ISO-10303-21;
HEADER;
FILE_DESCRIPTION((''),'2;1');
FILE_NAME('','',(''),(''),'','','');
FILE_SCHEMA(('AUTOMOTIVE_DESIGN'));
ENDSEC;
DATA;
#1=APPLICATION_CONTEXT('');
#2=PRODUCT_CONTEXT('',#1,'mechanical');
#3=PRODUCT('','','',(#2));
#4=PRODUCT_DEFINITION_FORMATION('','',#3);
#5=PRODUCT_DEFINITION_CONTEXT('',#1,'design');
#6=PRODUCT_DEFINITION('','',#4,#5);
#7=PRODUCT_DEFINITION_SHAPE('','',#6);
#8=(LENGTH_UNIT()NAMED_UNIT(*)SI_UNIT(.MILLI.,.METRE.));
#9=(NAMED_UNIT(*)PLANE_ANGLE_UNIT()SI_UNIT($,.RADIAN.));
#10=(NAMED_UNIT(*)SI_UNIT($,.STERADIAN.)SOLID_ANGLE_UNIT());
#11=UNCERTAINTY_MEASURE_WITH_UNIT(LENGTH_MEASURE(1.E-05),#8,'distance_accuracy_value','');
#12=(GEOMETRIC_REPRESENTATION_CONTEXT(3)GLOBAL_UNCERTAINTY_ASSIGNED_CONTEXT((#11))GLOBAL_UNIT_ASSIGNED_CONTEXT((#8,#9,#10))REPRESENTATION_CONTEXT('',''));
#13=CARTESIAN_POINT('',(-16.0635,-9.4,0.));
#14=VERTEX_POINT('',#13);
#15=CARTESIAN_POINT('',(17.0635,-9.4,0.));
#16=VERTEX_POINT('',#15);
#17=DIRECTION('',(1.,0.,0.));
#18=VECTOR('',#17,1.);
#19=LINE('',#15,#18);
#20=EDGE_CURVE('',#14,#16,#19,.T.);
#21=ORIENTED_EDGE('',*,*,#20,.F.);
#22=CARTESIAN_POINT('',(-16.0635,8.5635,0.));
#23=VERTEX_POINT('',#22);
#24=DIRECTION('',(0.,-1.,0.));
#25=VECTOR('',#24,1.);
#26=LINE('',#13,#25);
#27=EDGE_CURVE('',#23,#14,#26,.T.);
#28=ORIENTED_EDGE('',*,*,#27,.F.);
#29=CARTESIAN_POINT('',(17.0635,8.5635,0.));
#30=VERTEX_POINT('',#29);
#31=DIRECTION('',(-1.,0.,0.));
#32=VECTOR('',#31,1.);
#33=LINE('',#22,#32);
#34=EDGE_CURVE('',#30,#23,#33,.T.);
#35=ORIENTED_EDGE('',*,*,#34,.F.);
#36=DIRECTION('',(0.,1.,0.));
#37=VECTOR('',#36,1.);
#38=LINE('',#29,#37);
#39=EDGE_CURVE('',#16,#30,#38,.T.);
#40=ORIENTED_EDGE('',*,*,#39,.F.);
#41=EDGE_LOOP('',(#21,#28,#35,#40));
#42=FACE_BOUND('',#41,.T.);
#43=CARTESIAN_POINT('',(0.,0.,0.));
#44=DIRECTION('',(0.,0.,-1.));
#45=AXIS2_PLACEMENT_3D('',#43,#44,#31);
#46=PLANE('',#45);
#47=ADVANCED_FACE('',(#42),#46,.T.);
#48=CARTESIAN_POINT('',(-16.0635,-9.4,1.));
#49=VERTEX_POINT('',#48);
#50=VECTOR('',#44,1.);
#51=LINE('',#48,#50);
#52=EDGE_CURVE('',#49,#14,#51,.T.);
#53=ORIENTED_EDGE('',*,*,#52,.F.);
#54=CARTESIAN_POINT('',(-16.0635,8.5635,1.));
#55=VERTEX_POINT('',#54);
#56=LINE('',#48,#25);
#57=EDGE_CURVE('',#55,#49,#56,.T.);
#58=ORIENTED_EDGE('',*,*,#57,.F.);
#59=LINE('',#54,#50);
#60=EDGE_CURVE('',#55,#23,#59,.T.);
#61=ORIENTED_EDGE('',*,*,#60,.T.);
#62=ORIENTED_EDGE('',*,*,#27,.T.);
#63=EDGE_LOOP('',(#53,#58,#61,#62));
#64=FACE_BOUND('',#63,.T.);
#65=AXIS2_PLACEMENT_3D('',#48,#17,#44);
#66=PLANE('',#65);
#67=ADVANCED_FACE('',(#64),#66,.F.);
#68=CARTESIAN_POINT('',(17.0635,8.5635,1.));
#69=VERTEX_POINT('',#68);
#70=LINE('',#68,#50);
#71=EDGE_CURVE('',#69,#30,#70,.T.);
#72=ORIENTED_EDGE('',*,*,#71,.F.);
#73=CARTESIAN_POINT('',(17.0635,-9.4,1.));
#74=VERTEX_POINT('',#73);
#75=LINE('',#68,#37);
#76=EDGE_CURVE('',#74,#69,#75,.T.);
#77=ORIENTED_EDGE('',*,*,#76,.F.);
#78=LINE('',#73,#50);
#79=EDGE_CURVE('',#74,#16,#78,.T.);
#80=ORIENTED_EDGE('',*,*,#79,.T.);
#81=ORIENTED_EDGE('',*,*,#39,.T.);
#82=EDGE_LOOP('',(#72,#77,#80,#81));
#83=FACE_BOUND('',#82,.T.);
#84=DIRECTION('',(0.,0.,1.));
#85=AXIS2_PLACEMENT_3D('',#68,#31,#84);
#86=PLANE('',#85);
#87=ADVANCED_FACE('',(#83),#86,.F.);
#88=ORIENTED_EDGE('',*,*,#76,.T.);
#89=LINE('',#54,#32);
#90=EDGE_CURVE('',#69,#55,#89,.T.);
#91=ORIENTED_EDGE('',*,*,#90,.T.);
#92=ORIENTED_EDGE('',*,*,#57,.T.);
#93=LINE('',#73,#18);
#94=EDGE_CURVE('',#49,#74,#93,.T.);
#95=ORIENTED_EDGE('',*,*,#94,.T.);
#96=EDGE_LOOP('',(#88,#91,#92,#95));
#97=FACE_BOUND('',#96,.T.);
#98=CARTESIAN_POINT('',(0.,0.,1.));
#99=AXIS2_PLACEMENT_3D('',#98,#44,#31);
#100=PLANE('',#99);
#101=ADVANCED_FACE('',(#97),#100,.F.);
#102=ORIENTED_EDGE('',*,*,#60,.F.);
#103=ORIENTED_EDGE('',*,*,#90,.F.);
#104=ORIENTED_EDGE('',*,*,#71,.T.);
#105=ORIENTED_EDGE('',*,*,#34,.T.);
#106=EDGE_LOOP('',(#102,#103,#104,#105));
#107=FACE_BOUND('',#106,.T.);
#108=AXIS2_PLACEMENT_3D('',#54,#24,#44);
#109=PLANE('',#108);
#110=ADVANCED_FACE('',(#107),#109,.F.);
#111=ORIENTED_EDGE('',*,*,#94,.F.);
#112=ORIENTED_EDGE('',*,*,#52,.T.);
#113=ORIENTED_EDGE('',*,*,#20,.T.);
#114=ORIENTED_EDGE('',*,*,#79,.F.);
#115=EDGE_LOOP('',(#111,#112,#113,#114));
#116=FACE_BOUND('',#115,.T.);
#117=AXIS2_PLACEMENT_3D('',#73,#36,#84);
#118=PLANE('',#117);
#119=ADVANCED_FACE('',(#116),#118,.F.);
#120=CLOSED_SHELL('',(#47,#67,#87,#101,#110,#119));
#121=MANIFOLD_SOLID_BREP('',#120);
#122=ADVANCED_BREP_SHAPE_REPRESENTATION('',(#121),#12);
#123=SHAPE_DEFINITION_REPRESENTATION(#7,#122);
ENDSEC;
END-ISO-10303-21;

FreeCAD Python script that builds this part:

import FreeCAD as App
import Part
import Sketcher
from FreeCAD import Vector
Q = App.Units.Quantity


def add_polygon(sketch, points):
    """Adds a closed chain of lines whose ends are joined by coincident constraints."""
    first, n = sketch.GeometryCount, len(points)
    for a, b in zip(points, points[1:] + points[:1]):
        sketch.addGeometry(Part.LineSegment(App.Vector(*a, 0), App.Vector(*b, 0)), False)
    for i in range(n):
        sketch.addConstraint(Sketcher.Constraint("Coincident", first + i, 2, first + (i + 1) % n, 1))

doc = App.newDocument("Part")
body = doc.addObject("PartDesign::Body", "Body")

# Sketch on XY plane
sketch1 = body.newObject("Sketcher::SketchObject", "Sketch")
sketch1.AttachmentSupport = (doc.getObject("XY_Plane"), [""])
sketch1.MapMode = "FlatFace"
add_polygon(sketch1, [(-16, 9), (-16, -9), (17, -9), (17, 9)])  # lines 0-3
sketch1.addConstraint([
    Sketcher.Constraint("Vertical", 0),
    Sketcher.Constraint("Horizontal", 1),
    Sketcher.Constraint("Vertical", 2),
    Sketcher.Constraint("Horizontal", 3),
    Sketcher.Constraint("DistanceY", 0, 2, -1, 1, Q("9.4 mm")),
    Sketcher.Constraint("DistanceX", 1, 1, 1, 2, Q("33.127 mm")),
    Sketcher.Constraint("DistanceY", 0, 2, 0, 1, Q("17.9635 mm")),
    Sketcher.Constraint("DistanceX", 0, 2, -1, 1, Q("16.0635 mm")),
])
pad1 = body.newObject("PartDesign::Pad", "Pad")
pad1.Profile = sketch1
pad1.Length = 1

doc.recompute()
